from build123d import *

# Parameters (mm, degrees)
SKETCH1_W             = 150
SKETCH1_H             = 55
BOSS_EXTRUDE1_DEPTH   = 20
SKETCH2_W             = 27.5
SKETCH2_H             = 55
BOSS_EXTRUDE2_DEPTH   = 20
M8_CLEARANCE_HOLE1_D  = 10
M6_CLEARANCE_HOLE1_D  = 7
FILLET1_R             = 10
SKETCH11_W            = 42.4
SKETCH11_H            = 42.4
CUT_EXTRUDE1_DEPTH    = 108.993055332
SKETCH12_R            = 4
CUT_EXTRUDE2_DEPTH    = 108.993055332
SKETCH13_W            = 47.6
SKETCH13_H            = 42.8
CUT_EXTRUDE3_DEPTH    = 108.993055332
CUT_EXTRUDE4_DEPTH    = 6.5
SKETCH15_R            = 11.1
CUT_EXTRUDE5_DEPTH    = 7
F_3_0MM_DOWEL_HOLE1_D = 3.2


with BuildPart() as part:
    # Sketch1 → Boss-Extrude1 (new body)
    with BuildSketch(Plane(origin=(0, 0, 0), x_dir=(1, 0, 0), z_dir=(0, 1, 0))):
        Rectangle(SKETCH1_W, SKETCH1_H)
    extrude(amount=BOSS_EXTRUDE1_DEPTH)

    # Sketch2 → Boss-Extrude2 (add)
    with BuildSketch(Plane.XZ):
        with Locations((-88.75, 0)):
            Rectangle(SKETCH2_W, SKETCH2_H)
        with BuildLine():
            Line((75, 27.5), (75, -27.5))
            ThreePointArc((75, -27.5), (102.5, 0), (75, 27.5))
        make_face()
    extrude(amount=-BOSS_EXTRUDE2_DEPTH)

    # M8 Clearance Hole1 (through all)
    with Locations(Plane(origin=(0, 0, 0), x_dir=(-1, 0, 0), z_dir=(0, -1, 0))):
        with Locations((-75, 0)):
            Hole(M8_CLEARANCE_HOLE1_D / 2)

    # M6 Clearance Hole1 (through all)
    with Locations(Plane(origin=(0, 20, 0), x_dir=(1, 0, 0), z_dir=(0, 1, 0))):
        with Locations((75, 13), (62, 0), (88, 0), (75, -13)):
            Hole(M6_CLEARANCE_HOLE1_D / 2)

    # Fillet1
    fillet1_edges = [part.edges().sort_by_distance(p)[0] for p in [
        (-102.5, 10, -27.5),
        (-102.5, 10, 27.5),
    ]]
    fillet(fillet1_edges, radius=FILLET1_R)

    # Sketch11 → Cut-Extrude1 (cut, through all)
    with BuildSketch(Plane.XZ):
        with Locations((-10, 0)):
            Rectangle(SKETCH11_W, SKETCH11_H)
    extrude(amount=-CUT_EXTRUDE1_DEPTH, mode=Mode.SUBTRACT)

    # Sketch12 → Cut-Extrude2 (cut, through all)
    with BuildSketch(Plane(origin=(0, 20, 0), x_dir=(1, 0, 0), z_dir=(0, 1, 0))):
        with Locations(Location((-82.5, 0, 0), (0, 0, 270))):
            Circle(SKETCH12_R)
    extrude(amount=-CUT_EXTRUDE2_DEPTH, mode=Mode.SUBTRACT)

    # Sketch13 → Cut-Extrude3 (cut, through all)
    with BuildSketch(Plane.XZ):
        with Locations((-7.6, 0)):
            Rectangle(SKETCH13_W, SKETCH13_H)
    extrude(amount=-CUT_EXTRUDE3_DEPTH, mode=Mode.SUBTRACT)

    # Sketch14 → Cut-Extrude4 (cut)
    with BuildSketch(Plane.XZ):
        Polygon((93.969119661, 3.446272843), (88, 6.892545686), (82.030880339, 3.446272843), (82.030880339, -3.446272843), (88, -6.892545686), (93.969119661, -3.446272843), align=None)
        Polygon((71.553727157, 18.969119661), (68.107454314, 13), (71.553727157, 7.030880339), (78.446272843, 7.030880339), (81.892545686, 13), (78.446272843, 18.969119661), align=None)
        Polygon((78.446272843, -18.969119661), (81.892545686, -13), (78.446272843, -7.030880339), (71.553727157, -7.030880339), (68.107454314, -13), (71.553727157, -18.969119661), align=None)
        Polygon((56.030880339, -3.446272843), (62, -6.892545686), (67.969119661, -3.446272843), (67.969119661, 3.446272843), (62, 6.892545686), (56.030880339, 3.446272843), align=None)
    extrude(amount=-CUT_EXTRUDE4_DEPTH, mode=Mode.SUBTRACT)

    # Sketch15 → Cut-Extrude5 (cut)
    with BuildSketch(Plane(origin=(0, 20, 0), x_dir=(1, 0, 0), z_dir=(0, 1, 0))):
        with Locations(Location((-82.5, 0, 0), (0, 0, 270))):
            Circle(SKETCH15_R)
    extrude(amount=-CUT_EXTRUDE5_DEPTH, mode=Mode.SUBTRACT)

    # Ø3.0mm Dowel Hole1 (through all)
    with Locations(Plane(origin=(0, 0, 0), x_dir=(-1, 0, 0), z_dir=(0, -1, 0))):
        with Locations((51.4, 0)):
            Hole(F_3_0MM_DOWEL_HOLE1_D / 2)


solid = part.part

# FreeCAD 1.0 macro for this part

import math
import FreeCAD as App
import Part
import Sketcher

V = App.Vector
Q = App.Units.Quantity


def edges_at(feature, points):
    """Names of the edges that pass closest to the given points."""
    edges = feature.Shape.Edges
    near = lambda p: min(range(len(edges)), key=lambda i: edges[i].distToShape(Part.Vertex(*p))[0])
    return sorted({f"Edge{near(p) + 1}" for p in points})

doc = App.newDocument("Part")
body = doc.addObject("PartDesign::Body", "Body")

sketch1 = body.newObject("Sketcher::SketchObject", "Sketch")
sketch1.AttachmentSupport = (doc.getObject("XZ_Plane"), [""])
sketch1.MapMode = "FlatFace"
sketch1.addGeometry([
    Part.LineSegment(V(-75, -28, 0), V(-75, 28, 0)),
    Part.LineSegment(V(-75, 28, 0), V(75, 28, 0)),
    Part.LineSegment(V(75, 28, 0), V(75, -28, 0)),
    Part.LineSegment(V(75, -28, 0), V(-75, -28, 0)),
], False)
sketch1.addConstraint([
    Sketcher.Constraint("Coincident", 0, 2, 1, 1),
    Sketcher.Constraint("Coincident", 1, 2, 2, 1),
    Sketcher.Constraint("Coincident", 2, 2, 3, 1),
    Sketcher.Constraint("Coincident", 3, 2, 0, 1),
    Sketcher.Constraint("Vertical", 0),
    Sketcher.Constraint("Horizontal", 1),
    Sketcher.Constraint("Vertical", 2),
    Sketcher.Constraint("Horizontal", 3),
    Sketcher.Constraint("Symmetric", 0, 2, 2, 2, -1, 1),
    Sketcher.Constraint("DistanceX", 1, 1, 1, 2, Q("150 mm")),
    Sketcher.Constraint("DistanceY", 0, 1, 0, 2, Q("55 mm")),
])
pad1 = body.newObject("PartDesign::Pad", "Pad")
pad1.Profile = sketch1
pad1.Length = 20
pad1.Reversed = True

sketch2 = body.newObject("Sketcher::SketchObject", "Sketch001")
sketch2.AttachmentSupport = (doc.getObject("XZ_Plane"), [""])
sketch2.MapMode = "FlatFace"
sketch2.addGeometry([
    Part.LineSegment(V(-102, 28, 0), V(-102, -28, 0)),
    Part.LineSegment(V(-102, -28, 0), V(-75, -28, 0)),
    Part.LineSegment(V(-75, -28, 0), V(-75, 28, 0)),
    Part.LineSegment(V(-75, 28, 0), V(-102, 28, 0)),
    Part.LineSegment(V(75, 28, 0), V(75, -28, 0)),
    Part.ArcOfCircle(Part.Circle(V(75, 0, 0), V(0, 0, 1), 28), math.radians(-90), math.radians(90)),
], False)
sketch2.addConstraint([
    Sketcher.Constraint("Coincident", 0, 2, 1, 1),
    Sketcher.Constraint("Coincident", 1, 2, 2, 1),
    Sketcher.Constraint("Coincident", 2, 2, 3, 1),
    Sketcher.Constraint("Coincident", 3, 2, 0, 1),
    Sketcher.Constraint("Coincident", 4, 1, 5, 2),
    Sketcher.Constraint("Coincident", 5, 1, 4, 2),
    Sketcher.Constraint("Vertical", 0),
    Sketcher.Constraint("Horizontal", 1),
    Sketcher.Constraint("Vertical", 2),
    Sketcher.Constraint("Horizontal", 3),
    Sketcher.Constraint("Vertical", 4),
    Sketcher.Constraint("Symmetric", 1, 2, 4, 1, -1, 1),
    Sketcher.Constraint("PointOnObject", 5, 3, -1),
    Sketcher.Constraint("Horizontal", 3, 2, 4, 1),
    Sketcher.Constraint("Vertical", 5, 3, 4, 1),
    Sketcher.Constraint("Radius", 5, Q("27.5 mm")),
    Sketcher.Constraint("DistanceX", 1, 1, 1, 2, Q("27.5 mm")),
    Sketcher.Constraint("DistanceX", -1, 1, 5, 3, Q("75 mm")),
])
pad2 = body.newObject("PartDesign::Pad", "Pad001")
pad2.Profile = sketch2
pad2.Length = 20
pad2.Reversed = True

sketch3 = body.newObject("Sketcher::SketchObject", "Sketch002")
sketch3.AttachmentSupport = (doc.getObject("XZ_Plane"), [""])
sketch3.MapMode = "FlatFace"
sketch3.addGeometry(Part.Circle(V(75, 0, 0), V(0, 0, 1), 5), False)
sketch3.addConstraint([
    Sketcher.Constraint("PointOnObject", 0, 3, -1),
    Sketcher.Constraint("Diameter", 0, Q("10 mm")),
    Sketcher.Constraint("DistanceX", -1, 1, 0, 3, Q("75 mm")),
])
doc.recompute()
hole = body.newObject("PartDesign::Hole", "Hole")
hole.Profile = sketch3
hole.ThreadType = "None"
hole.Diameter = 10
hole.DepthType = "ThroughAll"

sketch4 = body.newObject("Sketcher::SketchObject", "Sketch003")
sketch4.AttachmentSupport = (doc.getObject("XZ_Plane"), [""])
sketch4.MapMode = "FlatFace"
sketch4.AttachmentOffset = App.Placement(V(0, 0, -20), App.Rotation())
sketch4.addGeometry([
    Part.Circle(V(75, -13, 0), V(0, 0, 1), 3.5),
    Part.Circle(V(62, 0, 0), V(0, 0, 1), 3.5),
    Part.Circle(V(88, 0, 0), V(0, 0, 1), 3.5),
    Part.Circle(V(75, 13, 0), V(0, 0, 1), 3.5),
], False)
sketch4.addConstraint([
    Sketcher.Constraint("Equal", 0, 1),
    Sketcher.Constraint("Equal", 1, 2),
    Sketcher.Constraint("Equal", 2, 3),
    Sketcher.Constraint("Symmetric", 0, 3, 3, 3, -1),
    Sketcher.Constraint("PointOnObject", 1, 3, -1),
    Sketcher.Constraint("PointOnObject", 2, 3, -1),
    Sketcher.Constraint("Diameter", 0, Q("7 mm")),
    Sketcher.Constraint("DistanceX", -1, 1, 0, 3, Q("75 mm")),
    Sketcher.Constraint("DistanceY", 0, 3, -1, 1, Q("13 mm")),
    Sketcher.Constraint("DistanceX", -1, 1, 1, 3, Q("62 mm")),
    Sketcher.Constraint("DistanceX", -1, 1, 2, 3, Q("88 mm")),
])
doc.recompute()
hole2 = body.newObject("PartDesign::Hole", "Hole001")
hole2.Profile = sketch4
hole2.ThreadType = "None"
hole2.Diameter = 7
hole2.DepthType = "ThroughAll"
hole2.Reversed = True
doc.recompute()

fillet = body.newObject("PartDesign::Fillet", "Fillet")
fillet.Base = (hole2, edges_at(hole2, [(-102.5, 10, -27.5), (-102.5, 10, 27.5)]))
fillet.Radius = 10

sketch5 = body.newObject("Sketcher::SketchObject", "Sketch004")
sketch5.AttachmentSupport = (doc.getObject("XZ_Plane"), [""])
sketch5.MapMode = "FlatFace"
sketch5.addGeometry([
    Part.LineSegment(V(-31, 21, 0), V(-31, -21, 0)),
    Part.LineSegment(V(-31, -21, 0), V(11, -21, 0)),
    Part.LineSegment(V(11, -21, 0), V(11, 21, 0)),
    Part.LineSegment(V(11, 21, 0), V(-31, 21, 0)),
], False)
sketch5.addConstraint([
    Sketcher.Constraint("Coincident", 0, 2, 1, 1),
    Sketcher.Constraint("Coincident", 1, 2, 2, 1),
    Sketcher.Constraint("Coincident", 2, 2, 3, 1),
    Sketcher.Constraint("Coincident", 3, 2, 0, 1),
    Sketcher.Constraint("Vertical", 0),
    Sketcher.Constraint("Horizontal", 1),
    Sketcher.Constraint("Vertical", 2),
    Sketcher.Constraint("Horizontal", 3),
    Sketcher.Constraint("Equal", 3, 0),
    Sketcher.Constraint("DistanceX", 1, 1, 1, 2, Q("42.4 mm")),
    Sketcher.Constraint("DistanceX", 0, 2, -1, 1, Q("31.2 mm")),
    Sketcher.Constraint("DistanceY", 0, 2, -1, 1, Q("21.2 mm")),
])
pocket1 = body.newObject("PartDesign::Pocket", "Pocket")
pocket1.Profile = sketch5
pocket1.Type = "ThroughAll"

sketch6 = body.newObject("Sketcher::SketchObject", "Sketch005")
sketch6.AttachmentSupport = (doc.getObject("XZ_Plane"), [""])
sketch6.MapMode = "FlatFace"
sketch6.AttachmentOffset = App.Placement(V(0, 0, -20), App.Rotation())
sketch6.addGeometry(Part.Circle(V(-82.5, 0, 0), V(0, 0, 1), 4), False)
sketch6.addConstraint([
    Sketcher.Constraint("PointOnObject", 0, 3, -1),
    Sketcher.Constraint("Diameter", 0, Q("8 mm")),
    Sketcher.Constraint("DistanceX", 0, 3, -1, 1, Q("82.5 mm")),
])
pocket2 = body.newObject("PartDesign::Pocket", "Pocket001")
pocket2.Profile = sketch6
pocket2.Type = "ThroughAll"
pocket2.Reversed = True

sketch7 = body.newObject("Sketcher::SketchObject", "Sketch006")
sketch7.AttachmentSupport = (doc.getObject("XZ_Plane"), [""])
sketch7.MapMode = "FlatFace"
sketch7.addGeometry([
    Part.LineSegment(V(-31, 21, 0), V(-31, -21, 0)),
    Part.LineSegment(V(-31, -21, 0), V(16, -21, 0)),
    Part.LineSegment(V(16, -21, 0), V(16, 21, 0)),
    Part.LineSegment(V(16, 21, 0), V(-31, 21, 0)),
], False)
sketch7.addConstraint([
    Sketcher.Constraint("Coincident", 0, 2, 1, 1),
    Sketcher.Constraint("Coincident", 1, 2, 2, 1),
    Sketcher.Constraint("Coincident", 2, 2, 3, 1),
    Sketcher.Constraint("Coincident", 3, 2, 0, 1),
    Sketcher.Constraint("Vertical", 0),
    Sketcher.Constraint("Horizontal", 1),
    Sketcher.Constraint("Vertical", 2),
    Sketcher.Constraint("Horizontal", 3),
    Sketcher.Constraint("DistanceX", 1, 1, 1, 2, Q("47.6 mm")),
    Sketcher.Constraint("DistanceY", 0, 2, 0, 1, Q("42.8 mm")),
    Sketcher.Constraint("DistanceX", 0, 2, -1, 1, Q("31.4 mm")),
    Sketcher.Constraint("DistanceY", 0, 2, -1, 1, Q("21.4 mm")),
])
pocket3 = body.newObject("PartDesign::Pocket", "Pocket002")
pocket3.Profile = sketch7
pocket3.Type = "ThroughAll"

sketch8 = body.newObject("Sketcher::SketchObject", "Sketch007")
sketch8.AttachmentSupport = (doc.getObject("XZ_Plane"), [""])
sketch8.MapMode = "FlatFace"
sketch8.addGeometry([
    Part.LineSegment(V(94, 3, 0), V(88, 7, 0)),
    Part.LineSegment(V(88, 7, 0), V(82, 3, 0)),
    Part.LineSegment(V(82, 3, 0), V(82, -3, 0)),
    Part.LineSegment(V(82, -3, 0), V(88, -7, 0)),
    Part.LineSegment(V(88, -7, 0), V(94, -3, 0)),
    Part.LineSegment(V(94, -3, 0), V(94, 3, 0)),
    Part.LineSegment(V(72, 19, 0), V(68, 13, 0)),
    Part.LineSegment(V(68, 13, 0), V(72, 7, 0)),
    Part.LineSegment(V(72, 7, 0), V(78, 7, 0)),
    Part.LineSegment(V(78, 7, 0), V(82, 13, 0)),
    Part.LineSegment(V(82, 13, 0), V(78, 19, 0)),
    Part.LineSegment(V(78, 19, 0), V(72, 19, 0)),
    Part.LineSegment(V(78, -19, 0), V(82, -13, 0)),
    Part.LineSegment(V(82, -13, 0), V(78, -7, 0)),
    Part.LineSegment(V(78, -7, 0), V(72, -7, 0)),
    Part.LineSegment(V(72, -7, 0), V(68, -13, 0)),
    Part.LineSegment(V(68, -13, 0), V(72, -19, 0)),
    Part.LineSegment(V(72, -19, 0), V(78, -19, 0)),
    Part.LineSegment(V(56, -3, 0), V(62, -7, 0)),
    Part.LineSegment(V(62, -7, 0), V(68, -3, 0)),
    Part.LineSegment(V(68, -3, 0), V(68, 3, 0)),
    Part.LineSegment(V(68, 3, 0), V(62, 7, 0)),
    Part.LineSegment(V(62, 7, 0), V(56, 3, 0)),
    Part.LineSegment(V(56, 3, 0), V(56, -3, 0)),
], False)
sketch8.addConstraint([
    Sketcher.Constraint("Coincident", 0, 2, 1, 1),
    Sketcher.Constraint("Coincident", 1, 2, 2, 1),
    Sketcher.Constraint("Coincident", 2, 2, 3, 1),
    Sketcher.Constraint("Coincident", 3, 2, 4, 1),
    Sketcher.Constraint("Coincident", 4, 2, 5, 1),
    Sketcher.Constraint("Coincident", 5, 2, 0, 1),
    Sketcher.Constraint("Coincident", 6, 2, 7, 1),
    Sketcher.Constraint("Coincident", 7, 2, 8, 1),
    Sketcher.Constraint("Coincident", 8, 2, 9, 1),
    Sketcher.Constraint("Coincident", 9, 2, 10, 1),
    Sketcher.Constraint("Coincident", 10, 2, 11, 1),
    Sketcher.Constraint("Coincident", 11, 2, 6, 1),
    Sketcher.Constraint("Coincident", 12, 2, 13, 1),
    Sketcher.Constraint("Coincident", 13, 2, 14, 1),
    Sketcher.Constraint("Coincident", 14, 2, 15, 1),
    Sketcher.Constraint("Coincident", 15, 2, 16, 1),
    Sketcher.Constraint("Coincident", 16, 2, 17, 1),
    Sketcher.Constraint("Coincident", 17, 2, 12, 1),
    Sketcher.Constraint("Coincident", 18, 2, 19, 1),
    Sketcher.Constraint("Coincident", 19, 2, 20, 1),
    Sketcher.Constraint("Coincident", 20, 2, 21, 1),
    Sketcher.Constraint("Coincident", 21, 2, 22, 1),
    Sketcher.Constraint("Coincident", 22, 2, 23, 1),
    Sketcher.Constraint("Coincident", 23, 2, 18, 1),
    Sketcher.Constraint("Vertical", 2),
    Sketcher.Constraint("Vertical", 5),
    Sketcher.Constraint("Horizontal", 8),
    Sketcher.Constraint("Horizontal", 11),
    Sketcher.Constraint("Horizontal", 14),
    Sketcher.Constraint("Horizontal", 17),
    Sketcher.Constraint("Vertical", 20),
    Sketcher.Constraint("Vertical", 23),
    Sketcher.Constraint("Symmetric", 0, 2, 3, 2, -1),
    Sketcher.Constraint("Symmetric", 9, 2, 12, 2, -1),
    Sketcher.Constraint("Symmetric", 8, 2, 13, 2, -1),
    Sketcher.Constraint("Symmetric", 6, 2, 15, 2, -1),
    Sketcher.Constraint("Symmetric", 11, 2, 16, 2, -1),
    Sketcher.Constraint("Symmetric", 18, 2, 21, 2, -1),
    Sketcher.Constraint("Parallel", 0, 3),
    Sketcher.Constraint("Parallel", 1, 4),
    Sketcher.Constraint("Perpendicular", 3, 6),
    Sketcher.Constraint("Perpendicular", 4, 7),
    Sketcher.Constraint("Parallel", 6, 9),
    Sketcher.Constraint("Parallel", 7, 10),
    Sketcher.Constraint("Parallel", 9, 12),
    Sketcher.Constraint("Parallel", 10, 13),
    Sketcher.Constraint("Parallel", 12, 15),
    Sketcher.Constraint("Perpendicular", 15, 18),
    Sketcher.Constraint("Perpendicular", 16, 19),
    Sketcher.Constraint("Parallel", 18, 21),
    Sketcher.Constraint("Parallel", 19, 22),
    Sketcher.Constraint("Horizontal", 2, 2, 4, 2),
    Sketcher.Constraint("Horizontal", 6, 2, 9, 2),
    Sketcher.Constraint("Horizontal", 3, 2, 18, 2),
    Sketcher.Constraint("Horizontal", 4, 2, 19, 2),
    Sketcher.Constraint("Horizontal", 20, 2, 22, 2),
    Sketcher.Constraint("Vertical", 8, 2, 10, 2),
    Sketcher.Constraint("Equal", 17, 2),
    Sketcher.Constraint("Equal", 4, 6),
    Sketcher.Constraint("Angle", 0, Q("150 deg")),
    Sketcher.Constraint("DistanceX", -1, 1, 0, 2, Q("88 mm")),
    Sketcher.Constraint("DistanceY", -1, 1, 6, 2, Q("13 mm")),
    Sketcher.Constraint("DistanceX", -1, 1, 18, 2, Q("62 mm")),
    Sketcher.Constraint("DistanceX", 8, 1, 8, 2, Q("6.892546 mm")),
    Sketcher.Constraint("DistanceX", -1, 1, 1, 2, Q("82.03088 mm")),
    Sketcher.Constraint("DistanceX", -1, 1, 6, 2, Q("68.107454 mm")),
])
pocket4 = body.newObject("PartDesign::Pocket", "Pocket003")
pocket4.Profile = sketch8
pocket4.Length = 6.5

sketch9 = body.newObject("Sketcher::SketchObject", "Sketch008")
sketch9.AttachmentSupport = (doc.getObject("XZ_Plane"), [""])
sketch9.MapMode = "FlatFace"
sketch9.AttachmentOffset = App.Placement(V(0, 0, -20), App.Rotation())
sketch9.addGeometry(Part.Circle(V(-82, 0, 0), V(0, 0, 1), 11), False)
sketch9.addConstraint([
    Sketcher.Constraint("PointOnObject", 0, 3, -1),
    Sketcher.Constraint("Diameter", 0, Q("22.2 mm")),
    Sketcher.Constraint("DistanceX", 0, 3, -1, 1, Q("82.5 mm")),
])
pocket5 = body.newObject("PartDesign::Pocket", "Pocket004")
pocket5.Profile = sketch9
pocket5.Length = 7
pocket5.Reversed = True

sketch10 = body.newObject("Sketcher::SketchObject", "Sketch009")
sketch10.AttachmentSupport = (doc.getObject("XZ_Plane"), [""])
sketch10.MapMode = "FlatFace"
sketch10.addGeometry(Part.Circle(V(-51.4, 0, 0), V(0, 0, 1), 1.6), False)
sketch10.addConstraint([
    Sketcher.Constraint("PointOnObject", 0, 3, -1),
    Sketcher.Constraint("Diameter", 0, Q("3.2 mm")),
    Sketcher.Constraint("DistanceX", 0, 3, -1, 1, Q("51.4 mm")),
])
doc.recompute()
hole3 = body.newObject("PartDesign::Hole", "Hole002")
hole3.Profile = sketch10
hole3.ThreadType = "None"
hole3.Diameter = 3.2
hole3.DepthType = "ThroughAll"

doc.recompute()
